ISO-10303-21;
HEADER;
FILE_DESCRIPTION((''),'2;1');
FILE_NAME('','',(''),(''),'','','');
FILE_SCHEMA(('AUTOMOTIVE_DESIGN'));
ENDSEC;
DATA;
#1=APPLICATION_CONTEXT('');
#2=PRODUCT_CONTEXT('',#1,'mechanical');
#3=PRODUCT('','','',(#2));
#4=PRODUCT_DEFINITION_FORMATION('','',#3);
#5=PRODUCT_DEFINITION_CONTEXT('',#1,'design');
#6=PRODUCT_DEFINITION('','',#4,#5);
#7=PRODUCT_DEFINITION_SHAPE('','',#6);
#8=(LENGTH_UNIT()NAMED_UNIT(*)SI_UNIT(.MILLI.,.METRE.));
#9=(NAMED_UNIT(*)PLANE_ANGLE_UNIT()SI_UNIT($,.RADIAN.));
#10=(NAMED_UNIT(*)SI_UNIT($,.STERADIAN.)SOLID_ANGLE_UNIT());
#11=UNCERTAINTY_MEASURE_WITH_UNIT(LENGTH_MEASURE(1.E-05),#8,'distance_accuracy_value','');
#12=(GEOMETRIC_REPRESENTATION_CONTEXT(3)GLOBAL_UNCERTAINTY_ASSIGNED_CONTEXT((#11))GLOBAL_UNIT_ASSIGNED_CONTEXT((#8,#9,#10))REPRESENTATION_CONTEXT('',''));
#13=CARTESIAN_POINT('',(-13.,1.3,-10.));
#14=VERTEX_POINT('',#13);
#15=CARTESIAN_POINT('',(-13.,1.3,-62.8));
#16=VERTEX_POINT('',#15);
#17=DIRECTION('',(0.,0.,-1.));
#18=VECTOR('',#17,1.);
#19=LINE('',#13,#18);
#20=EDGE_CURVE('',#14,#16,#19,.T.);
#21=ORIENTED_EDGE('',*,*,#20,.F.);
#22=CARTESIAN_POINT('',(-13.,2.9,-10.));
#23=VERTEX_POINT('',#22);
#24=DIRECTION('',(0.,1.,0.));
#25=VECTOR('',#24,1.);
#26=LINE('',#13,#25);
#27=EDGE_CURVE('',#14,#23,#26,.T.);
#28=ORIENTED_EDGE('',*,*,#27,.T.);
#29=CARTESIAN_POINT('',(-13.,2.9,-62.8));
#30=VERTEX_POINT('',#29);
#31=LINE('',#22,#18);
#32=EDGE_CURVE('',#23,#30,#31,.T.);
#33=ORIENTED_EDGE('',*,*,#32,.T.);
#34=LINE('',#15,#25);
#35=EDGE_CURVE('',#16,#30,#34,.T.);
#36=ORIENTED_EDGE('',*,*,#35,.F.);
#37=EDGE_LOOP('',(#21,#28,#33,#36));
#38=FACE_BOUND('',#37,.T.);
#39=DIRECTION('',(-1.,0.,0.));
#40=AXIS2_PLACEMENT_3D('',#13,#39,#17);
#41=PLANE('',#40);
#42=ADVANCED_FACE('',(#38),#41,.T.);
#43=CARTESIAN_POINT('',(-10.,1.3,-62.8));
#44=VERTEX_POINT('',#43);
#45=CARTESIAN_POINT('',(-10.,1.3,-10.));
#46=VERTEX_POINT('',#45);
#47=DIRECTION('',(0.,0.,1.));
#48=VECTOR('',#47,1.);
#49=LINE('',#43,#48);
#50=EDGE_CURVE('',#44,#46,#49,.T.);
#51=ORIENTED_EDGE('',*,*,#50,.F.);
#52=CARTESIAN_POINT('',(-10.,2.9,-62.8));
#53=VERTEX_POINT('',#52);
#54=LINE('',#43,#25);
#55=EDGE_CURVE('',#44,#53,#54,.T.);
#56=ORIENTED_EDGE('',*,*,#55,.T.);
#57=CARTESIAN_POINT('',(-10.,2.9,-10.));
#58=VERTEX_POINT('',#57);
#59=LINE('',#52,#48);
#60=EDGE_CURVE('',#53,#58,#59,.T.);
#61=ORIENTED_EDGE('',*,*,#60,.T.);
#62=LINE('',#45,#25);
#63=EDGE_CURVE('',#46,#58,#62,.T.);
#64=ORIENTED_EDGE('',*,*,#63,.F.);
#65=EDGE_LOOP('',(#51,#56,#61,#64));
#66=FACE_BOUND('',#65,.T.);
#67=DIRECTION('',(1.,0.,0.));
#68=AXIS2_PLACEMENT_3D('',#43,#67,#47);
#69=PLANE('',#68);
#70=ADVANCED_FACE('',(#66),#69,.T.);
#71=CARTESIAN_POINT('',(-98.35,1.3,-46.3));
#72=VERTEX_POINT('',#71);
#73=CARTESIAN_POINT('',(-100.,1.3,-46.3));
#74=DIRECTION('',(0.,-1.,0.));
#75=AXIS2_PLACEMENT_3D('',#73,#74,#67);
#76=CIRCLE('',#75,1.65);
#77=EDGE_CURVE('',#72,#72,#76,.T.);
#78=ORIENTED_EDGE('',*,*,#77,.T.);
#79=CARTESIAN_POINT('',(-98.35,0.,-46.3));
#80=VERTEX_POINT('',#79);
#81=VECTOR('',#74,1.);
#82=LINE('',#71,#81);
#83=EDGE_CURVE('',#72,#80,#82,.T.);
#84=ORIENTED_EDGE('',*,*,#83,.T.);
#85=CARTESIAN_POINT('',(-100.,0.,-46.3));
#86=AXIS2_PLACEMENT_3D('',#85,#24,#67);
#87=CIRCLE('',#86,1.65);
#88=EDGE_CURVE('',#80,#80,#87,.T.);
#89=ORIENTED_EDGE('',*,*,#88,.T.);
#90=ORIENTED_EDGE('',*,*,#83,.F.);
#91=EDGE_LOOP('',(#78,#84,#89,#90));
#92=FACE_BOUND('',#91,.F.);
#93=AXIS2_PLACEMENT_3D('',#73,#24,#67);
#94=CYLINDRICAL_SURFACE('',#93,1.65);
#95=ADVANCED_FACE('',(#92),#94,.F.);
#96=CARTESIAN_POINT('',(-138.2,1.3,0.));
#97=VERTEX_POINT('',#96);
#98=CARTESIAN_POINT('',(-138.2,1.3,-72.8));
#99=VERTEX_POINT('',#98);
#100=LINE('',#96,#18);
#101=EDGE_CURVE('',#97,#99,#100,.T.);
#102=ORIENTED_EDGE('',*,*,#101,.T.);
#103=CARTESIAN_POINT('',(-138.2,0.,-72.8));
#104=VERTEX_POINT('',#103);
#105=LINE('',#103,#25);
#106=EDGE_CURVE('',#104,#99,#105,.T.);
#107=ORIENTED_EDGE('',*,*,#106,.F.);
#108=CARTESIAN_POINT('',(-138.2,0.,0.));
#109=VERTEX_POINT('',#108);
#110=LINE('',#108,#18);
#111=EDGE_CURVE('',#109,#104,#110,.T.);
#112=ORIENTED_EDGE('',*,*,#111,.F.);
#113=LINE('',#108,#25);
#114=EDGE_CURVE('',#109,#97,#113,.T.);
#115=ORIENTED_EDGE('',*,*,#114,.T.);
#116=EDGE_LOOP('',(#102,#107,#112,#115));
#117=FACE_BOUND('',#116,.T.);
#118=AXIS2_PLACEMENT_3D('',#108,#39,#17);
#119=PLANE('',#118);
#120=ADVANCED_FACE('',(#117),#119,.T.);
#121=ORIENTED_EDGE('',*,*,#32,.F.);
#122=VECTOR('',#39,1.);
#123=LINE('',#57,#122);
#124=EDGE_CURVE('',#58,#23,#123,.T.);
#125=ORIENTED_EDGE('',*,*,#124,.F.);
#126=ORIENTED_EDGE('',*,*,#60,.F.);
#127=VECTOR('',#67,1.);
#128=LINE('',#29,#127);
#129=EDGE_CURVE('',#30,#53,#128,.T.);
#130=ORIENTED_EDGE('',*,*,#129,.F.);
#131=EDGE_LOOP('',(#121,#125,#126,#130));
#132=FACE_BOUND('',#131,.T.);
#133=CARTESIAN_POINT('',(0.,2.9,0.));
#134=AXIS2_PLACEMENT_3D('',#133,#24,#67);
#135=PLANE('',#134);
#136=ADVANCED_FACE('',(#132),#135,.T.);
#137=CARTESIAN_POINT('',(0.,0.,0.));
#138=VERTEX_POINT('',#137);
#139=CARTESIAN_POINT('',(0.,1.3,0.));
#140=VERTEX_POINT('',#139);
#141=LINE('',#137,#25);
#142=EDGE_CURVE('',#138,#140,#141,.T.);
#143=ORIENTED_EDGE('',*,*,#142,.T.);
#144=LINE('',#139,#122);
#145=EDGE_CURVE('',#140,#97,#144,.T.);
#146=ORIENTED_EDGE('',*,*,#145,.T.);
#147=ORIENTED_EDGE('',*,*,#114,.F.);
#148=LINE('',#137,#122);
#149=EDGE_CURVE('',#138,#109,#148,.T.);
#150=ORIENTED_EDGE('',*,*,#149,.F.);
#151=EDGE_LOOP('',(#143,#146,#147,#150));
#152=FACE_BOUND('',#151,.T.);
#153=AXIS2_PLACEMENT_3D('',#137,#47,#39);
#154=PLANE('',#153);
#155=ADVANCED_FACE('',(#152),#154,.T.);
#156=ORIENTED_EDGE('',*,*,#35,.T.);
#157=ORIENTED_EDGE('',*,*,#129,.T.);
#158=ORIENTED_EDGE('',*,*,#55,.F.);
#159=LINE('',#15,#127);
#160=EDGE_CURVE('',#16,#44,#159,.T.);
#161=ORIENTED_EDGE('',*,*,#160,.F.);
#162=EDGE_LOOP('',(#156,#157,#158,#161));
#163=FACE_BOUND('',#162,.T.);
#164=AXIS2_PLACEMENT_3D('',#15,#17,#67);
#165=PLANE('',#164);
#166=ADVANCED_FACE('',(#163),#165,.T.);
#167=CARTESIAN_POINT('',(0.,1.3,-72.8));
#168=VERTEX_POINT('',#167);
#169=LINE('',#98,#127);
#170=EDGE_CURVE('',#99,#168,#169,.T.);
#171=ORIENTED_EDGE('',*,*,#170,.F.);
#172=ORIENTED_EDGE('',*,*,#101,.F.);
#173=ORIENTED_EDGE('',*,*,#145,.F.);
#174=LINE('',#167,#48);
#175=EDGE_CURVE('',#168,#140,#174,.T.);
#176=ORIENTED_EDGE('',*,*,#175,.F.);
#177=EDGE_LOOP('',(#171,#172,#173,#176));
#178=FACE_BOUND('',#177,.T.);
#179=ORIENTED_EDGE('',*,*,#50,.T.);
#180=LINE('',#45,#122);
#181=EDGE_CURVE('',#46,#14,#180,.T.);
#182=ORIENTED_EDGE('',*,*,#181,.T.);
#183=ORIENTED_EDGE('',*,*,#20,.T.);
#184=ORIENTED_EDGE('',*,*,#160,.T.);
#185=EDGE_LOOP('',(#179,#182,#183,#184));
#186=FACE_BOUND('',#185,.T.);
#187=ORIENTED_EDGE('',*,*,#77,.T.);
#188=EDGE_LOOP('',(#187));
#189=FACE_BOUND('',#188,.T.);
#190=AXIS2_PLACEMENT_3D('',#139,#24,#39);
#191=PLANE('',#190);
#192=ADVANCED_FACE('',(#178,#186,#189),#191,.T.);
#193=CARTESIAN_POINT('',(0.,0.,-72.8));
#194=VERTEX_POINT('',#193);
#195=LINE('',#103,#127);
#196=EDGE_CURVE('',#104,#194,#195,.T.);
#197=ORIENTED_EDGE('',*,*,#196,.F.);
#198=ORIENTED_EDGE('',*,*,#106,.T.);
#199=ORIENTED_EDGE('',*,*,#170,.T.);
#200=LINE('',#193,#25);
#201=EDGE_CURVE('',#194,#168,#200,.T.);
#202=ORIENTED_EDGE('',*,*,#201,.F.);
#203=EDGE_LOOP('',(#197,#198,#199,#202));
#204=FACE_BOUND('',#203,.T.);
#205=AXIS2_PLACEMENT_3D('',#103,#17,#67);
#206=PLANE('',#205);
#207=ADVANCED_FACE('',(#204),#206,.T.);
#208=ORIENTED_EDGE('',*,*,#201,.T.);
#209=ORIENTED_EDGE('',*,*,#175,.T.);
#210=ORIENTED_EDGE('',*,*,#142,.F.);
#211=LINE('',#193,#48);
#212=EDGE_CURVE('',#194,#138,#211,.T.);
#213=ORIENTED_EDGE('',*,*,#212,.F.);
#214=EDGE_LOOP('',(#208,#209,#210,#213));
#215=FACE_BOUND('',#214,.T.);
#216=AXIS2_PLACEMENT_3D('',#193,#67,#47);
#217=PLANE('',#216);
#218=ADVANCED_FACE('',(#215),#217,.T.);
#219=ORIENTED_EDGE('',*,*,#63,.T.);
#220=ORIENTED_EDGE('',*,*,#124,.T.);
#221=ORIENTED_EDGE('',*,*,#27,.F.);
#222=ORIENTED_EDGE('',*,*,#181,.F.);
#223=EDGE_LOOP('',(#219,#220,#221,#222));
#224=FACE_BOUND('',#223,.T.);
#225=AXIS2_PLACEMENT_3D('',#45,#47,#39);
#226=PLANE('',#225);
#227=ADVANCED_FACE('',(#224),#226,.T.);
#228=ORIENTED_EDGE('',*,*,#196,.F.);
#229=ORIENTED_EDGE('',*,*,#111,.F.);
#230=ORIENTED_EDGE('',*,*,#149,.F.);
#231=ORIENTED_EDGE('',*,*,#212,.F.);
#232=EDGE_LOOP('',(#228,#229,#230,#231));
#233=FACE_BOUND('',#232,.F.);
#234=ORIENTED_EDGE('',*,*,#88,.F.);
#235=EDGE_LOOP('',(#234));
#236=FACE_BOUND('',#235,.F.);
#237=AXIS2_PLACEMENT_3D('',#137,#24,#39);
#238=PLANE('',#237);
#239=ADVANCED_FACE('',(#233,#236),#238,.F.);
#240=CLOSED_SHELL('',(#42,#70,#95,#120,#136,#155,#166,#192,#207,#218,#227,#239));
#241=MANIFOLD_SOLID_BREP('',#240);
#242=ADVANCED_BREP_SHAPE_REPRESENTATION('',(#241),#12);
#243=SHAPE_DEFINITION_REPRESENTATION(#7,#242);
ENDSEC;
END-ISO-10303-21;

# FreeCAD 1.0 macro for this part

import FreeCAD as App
import Part
import Sketcher


def add_polygon(sketch, points):
    """Adds a closed chain of lines whose ends are joined by coincident constraints."""
    first, n = sketch.GeometryCount, len(points)
    for a, b in zip(points, points[1:] + points[:1]):
        sketch.addGeometry(Part.LineSegment(App.Vector(*a, 0), App.Vector(*b, 0)), False)
    for i in range(n):
        sketch.addConstraint(Sketcher.Constraint("Coincident", first + i, 2, first + (i + 1) % n, 1))

doc = App.newDocument("Part")
body = doc.addObject("PartDesign::Body", "Body")

# Sketch on XZ plane
sketch1 = body.newObject("Sketcher::SketchObject", "Sketch")
sketch1.AttachmentSupport = (doc.getObject("XZ_Plane"), [""])
sketch1.MapMode = "FlatFace"
add_polygon(sketch1, [(-138, 0), (0, 0), (0, -73), (-138, -73)])  # lines 0-3
sketch1.addConstraint(Sketcher.Constraint("Horizontal", 0))
sketch1.addConstraint(Sketcher.Constraint("Vertical", 1))
sketch1.addConstraint(Sketcher.Constraint("Horizontal", 2))
sketch1.addConstraint(Sketcher.Constraint("Vertical", 3))
sketch1.addConstraint(Sketcher.Constraint("Coincident", 0, 2, -1, 1))
sketch1.addConstraint(Sketcher.Constraint("DistanceX", 0, 1, 0, 2, 138.2))
sketch1.addConstraint(Sketcher.Constraint("DistanceY", 1, 2, 1, 1, 72.8))
pad1 = body.newObject("PartDesign::Pad", "Pad")
pad1.Profile = sketch1
pad1.Length = 1.3
pad1.Reversed = True

# Sketch on XZ plane
sketch2 = body.newObject("Sketcher::SketchObject", "Sketch001")
sketch2.AttachmentSupport = (doc.getObject("XZ_Plane"), [""])
sketch2.MapMode = "FlatFace"
sketch2.AttachmentOffset = App.Placement(App.Vector(0, 0, -1.3), App.Rotation())
sketch2.addGeometry(Part.Circle(App.Vector(-100, -46.3, 0), App.Vector(0, 0, 1), 1.6), False)
sketch2.addConstraint(Sketcher.Constraint("Diameter", 0, 3.3))
sketch2.addConstraint(Sketcher.Constraint("DistanceX", 0, 3, -1, 1, 100.0))
sketch2.addConstraint(Sketcher.Constraint("DistanceY", 0, 3, -1, 1, 46.3))
pocket1 = body.newObject("PartDesign::Pocket", "Pocket")
pocket1.Profile = sketch2
pocket1.Type = "ThroughAll"
pocket1.Reversed = True

# Sketch on XZ plane
sketch3 = body.newObject("Sketcher::SketchObject", "Sketch002")
sketch3.AttachmentSupport = (doc.getObject("XZ_Plane"), [""])
sketch3.MapMode = "FlatFace"
sketch3.AttachmentOffset = App.Placement(App.Vector(0, 0, -1.3), App.Rotation())
add_polygon(sketch3, [(-13, -10), (-10, -10), (-10, -62.8), (-13, -62.8)])  # lines 0-3
sketch3.addConstraint(Sketcher.Constraint("Horizontal", 0))
sketch3.addConstraint(Sketcher.Constraint("Vertical", 1))
sketch3.addConstraint(Sketcher.Constraint("Horizontal", 2))
sketch3.addConstraint(Sketcher.Constraint("Vertical", 3))
sketch3.addConstraint(Sketcher.Constraint("DistanceX", 0, 1, 0, 2, 3.0))
sketch3.addConstraint(Sketcher.Constraint("DistanceX", 0, 2, -1, 1, 10.0))
sketch3.addConstraint(Sketcher.Constraint("DistanceY", 0, 2, -1, 1, 10.0))
sketch3.addConstraint(Sketcher.Constraint("DistanceY", 1, 2, 1, 1, 52.8))
pad2 = body.newObject("PartDesign::Pad", "Pad001")
pad2.Profile = sketch3
pad2.Length = 1.6
pad2.Reversed = True

doc.recompute()
